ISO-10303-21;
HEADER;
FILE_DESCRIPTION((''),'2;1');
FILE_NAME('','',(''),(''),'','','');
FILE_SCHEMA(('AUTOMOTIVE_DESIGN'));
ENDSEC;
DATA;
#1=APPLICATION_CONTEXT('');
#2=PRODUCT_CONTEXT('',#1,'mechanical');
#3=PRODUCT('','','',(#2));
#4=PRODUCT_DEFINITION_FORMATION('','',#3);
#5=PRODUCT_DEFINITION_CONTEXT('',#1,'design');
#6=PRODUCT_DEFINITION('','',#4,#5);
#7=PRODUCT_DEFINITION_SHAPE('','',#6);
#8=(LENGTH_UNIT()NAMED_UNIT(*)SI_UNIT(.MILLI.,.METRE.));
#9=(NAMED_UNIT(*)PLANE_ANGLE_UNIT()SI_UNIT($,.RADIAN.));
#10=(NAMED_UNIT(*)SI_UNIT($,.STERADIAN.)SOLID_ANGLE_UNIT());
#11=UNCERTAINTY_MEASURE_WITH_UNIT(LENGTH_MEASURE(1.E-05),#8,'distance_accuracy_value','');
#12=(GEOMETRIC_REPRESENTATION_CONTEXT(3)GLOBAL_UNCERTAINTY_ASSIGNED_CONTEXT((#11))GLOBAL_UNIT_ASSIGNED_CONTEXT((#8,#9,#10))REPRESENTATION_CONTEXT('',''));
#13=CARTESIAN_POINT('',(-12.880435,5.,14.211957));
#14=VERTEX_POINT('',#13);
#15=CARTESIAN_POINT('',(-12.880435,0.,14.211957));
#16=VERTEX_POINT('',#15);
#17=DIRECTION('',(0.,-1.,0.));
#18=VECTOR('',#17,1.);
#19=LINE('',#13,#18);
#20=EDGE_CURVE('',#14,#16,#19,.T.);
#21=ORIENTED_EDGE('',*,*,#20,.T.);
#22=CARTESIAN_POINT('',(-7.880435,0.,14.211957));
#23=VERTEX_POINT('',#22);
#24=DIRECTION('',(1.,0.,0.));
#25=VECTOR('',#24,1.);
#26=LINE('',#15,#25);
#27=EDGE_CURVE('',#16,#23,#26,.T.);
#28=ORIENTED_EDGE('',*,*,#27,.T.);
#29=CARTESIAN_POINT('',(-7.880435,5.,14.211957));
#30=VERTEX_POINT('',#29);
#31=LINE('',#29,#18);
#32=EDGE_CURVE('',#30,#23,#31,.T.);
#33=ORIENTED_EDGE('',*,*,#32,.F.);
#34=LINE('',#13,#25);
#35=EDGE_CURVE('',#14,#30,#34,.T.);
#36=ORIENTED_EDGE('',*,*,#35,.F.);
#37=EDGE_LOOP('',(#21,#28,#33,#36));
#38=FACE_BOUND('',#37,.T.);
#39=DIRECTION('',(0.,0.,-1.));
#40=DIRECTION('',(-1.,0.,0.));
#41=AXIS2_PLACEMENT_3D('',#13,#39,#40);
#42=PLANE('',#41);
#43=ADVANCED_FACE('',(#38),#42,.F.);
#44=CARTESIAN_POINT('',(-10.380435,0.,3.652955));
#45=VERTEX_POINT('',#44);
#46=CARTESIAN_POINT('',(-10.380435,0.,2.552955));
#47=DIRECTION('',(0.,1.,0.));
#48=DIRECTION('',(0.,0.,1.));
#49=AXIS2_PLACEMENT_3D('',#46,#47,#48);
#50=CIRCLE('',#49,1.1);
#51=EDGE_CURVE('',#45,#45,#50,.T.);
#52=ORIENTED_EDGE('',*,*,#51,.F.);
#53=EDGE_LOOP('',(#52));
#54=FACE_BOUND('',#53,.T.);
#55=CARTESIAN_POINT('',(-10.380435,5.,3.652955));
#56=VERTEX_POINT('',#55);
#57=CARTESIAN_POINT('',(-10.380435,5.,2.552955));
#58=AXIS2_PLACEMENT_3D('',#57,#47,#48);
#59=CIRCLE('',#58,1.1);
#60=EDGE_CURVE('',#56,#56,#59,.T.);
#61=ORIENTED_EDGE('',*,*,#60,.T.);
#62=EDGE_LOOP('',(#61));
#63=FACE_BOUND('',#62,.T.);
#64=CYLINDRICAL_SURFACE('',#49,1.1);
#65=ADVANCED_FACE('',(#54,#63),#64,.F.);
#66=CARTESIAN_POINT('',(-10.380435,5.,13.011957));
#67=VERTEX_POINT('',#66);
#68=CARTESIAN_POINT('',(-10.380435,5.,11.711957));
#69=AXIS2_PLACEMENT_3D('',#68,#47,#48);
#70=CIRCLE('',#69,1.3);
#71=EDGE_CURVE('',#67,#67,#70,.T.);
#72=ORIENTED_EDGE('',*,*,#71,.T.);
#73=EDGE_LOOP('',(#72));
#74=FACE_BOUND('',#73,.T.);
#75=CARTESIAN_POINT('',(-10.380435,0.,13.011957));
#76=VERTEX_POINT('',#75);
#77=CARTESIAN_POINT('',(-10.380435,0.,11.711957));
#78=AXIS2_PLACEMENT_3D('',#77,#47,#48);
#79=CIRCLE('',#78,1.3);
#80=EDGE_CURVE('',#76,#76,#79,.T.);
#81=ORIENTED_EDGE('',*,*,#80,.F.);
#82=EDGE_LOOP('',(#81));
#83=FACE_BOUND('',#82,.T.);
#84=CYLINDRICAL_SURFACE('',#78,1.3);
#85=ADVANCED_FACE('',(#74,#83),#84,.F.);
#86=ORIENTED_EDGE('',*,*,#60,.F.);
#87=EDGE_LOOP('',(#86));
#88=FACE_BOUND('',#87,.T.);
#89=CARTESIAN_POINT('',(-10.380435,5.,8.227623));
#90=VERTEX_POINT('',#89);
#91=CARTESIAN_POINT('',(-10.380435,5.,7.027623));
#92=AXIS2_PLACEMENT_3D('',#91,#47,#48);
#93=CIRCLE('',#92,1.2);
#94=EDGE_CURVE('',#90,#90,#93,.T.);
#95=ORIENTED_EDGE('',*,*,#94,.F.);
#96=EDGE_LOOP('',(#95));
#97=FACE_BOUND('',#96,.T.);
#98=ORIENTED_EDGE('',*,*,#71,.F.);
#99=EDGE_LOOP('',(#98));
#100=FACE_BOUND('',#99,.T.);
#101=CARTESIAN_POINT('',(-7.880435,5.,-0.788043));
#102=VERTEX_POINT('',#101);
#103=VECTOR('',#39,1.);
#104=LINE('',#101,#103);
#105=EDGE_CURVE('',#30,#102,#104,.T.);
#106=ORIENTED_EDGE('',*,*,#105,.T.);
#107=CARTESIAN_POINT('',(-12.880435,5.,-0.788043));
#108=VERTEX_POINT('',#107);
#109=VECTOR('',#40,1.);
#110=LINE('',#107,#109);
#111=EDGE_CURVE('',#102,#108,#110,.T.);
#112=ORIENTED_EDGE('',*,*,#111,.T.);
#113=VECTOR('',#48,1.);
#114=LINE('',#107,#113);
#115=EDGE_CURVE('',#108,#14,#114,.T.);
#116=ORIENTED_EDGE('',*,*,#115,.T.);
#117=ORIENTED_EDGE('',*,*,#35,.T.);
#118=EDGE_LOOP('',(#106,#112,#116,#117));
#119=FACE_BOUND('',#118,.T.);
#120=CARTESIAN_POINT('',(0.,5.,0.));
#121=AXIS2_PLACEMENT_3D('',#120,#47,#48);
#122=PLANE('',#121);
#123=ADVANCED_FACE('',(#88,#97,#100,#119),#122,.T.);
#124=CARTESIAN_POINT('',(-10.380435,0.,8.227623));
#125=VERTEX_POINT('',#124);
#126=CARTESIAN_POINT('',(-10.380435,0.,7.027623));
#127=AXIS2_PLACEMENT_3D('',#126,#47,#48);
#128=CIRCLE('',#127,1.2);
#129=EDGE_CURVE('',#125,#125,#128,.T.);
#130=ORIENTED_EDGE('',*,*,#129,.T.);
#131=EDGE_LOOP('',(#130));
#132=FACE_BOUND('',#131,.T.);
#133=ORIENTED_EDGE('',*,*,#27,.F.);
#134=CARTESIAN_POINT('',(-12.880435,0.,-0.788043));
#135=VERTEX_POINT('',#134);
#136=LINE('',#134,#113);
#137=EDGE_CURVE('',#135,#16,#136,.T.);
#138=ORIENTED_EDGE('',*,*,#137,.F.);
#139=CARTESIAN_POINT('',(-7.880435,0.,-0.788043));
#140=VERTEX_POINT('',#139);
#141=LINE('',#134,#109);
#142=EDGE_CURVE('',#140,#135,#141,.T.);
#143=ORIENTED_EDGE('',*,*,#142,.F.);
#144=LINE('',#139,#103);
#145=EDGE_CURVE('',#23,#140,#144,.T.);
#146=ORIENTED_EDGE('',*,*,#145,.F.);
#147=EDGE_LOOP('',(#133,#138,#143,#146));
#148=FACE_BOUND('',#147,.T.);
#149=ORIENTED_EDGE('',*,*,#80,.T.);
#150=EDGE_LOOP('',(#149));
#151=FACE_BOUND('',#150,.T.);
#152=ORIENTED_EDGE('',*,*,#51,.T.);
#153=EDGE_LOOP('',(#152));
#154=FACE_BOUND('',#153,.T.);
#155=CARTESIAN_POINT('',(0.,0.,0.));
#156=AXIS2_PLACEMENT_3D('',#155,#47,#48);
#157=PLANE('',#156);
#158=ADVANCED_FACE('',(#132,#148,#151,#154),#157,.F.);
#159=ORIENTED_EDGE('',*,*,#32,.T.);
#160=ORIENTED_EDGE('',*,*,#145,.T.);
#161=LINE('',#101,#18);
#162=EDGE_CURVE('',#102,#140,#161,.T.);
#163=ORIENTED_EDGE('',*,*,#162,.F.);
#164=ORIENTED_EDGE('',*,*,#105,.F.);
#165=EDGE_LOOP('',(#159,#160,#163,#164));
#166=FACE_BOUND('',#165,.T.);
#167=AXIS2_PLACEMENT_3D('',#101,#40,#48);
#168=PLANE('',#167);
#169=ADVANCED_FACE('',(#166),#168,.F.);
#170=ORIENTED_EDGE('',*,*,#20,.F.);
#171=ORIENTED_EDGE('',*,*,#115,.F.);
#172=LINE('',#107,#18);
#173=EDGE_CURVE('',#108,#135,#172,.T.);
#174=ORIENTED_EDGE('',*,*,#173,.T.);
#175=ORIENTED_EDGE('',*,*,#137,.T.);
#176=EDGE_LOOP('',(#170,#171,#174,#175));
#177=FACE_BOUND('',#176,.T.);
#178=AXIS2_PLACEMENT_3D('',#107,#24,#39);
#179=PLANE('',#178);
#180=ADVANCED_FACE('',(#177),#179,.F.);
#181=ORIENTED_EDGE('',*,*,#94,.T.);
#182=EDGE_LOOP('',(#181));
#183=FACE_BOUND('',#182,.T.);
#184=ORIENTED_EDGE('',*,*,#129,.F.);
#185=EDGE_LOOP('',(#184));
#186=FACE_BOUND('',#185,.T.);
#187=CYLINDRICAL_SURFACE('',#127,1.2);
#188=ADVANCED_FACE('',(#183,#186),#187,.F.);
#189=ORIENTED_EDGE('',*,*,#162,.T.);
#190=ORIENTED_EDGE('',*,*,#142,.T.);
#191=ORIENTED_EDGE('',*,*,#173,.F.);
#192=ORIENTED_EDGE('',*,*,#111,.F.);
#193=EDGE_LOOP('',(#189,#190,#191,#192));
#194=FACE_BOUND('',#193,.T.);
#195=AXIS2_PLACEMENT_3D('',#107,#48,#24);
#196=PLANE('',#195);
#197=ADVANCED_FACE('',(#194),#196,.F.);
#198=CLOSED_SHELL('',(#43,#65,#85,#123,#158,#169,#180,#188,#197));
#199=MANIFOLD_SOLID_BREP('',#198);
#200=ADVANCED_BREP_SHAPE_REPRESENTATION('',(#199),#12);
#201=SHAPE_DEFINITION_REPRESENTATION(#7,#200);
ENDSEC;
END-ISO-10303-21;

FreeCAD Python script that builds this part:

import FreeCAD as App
import Part
import Sketcher

V = App.Vector

doc = App.newDocument("Part")
body = doc.addObject("PartDesign::Body", "Body")

# Sketch on XZ plane
sketch1 = body.newObject("Sketcher::SketchObject", "Sketch")
sketch1.AttachmentSupport = (doc.getObject("XZ_Plane"), [""])
sketch1.MapMode = "FlatFace"
sketch1.addGeometry([
    Part.LineSegment(V(-13, -1, 0), V(-13, 14, 0)),
    Part.LineSegment(V(-13, 14, 0), V(-8, 14, 0)),
    Part.LineSegment(V(-8, 14, 0), V(-8, -1, 0)),
    Part.LineSegment(V(-8, -1, 0), V(-13, -1, 0)),
], False)
sketch1.addConstraint([
    Sketcher.Constraint("Coincident", 0, 2, 1, 1),
    Sketcher.Constraint("Coincident", 1, 2, 2, 1),
    Sketcher.Constraint("Coincident", 2, 2, 3, 1),
    Sketcher.Constraint("Coincident", 3, 2, 0, 1),
    Sketcher.Constraint("Vertical", 0),
    Sketcher.Constraint("Horizontal", 1),
    Sketcher.Constraint("Vertical", 2),
    Sketcher.Constraint("Horizontal", 3),
    Sketcher.Constraint("DistanceX", 1, 1, 1, 2, 5.0),
    Sketcher.Constraint("DistanceY", 0, 1, 0, 2, 15.0),
    Sketcher.Constraint("DistanceX", 0, 2, -1, 1, 12.880435),
    Sketcher.Constraint("DistanceY", -1, 1, 0, 2, 14.211957),
])
pad1 = body.newObject("PartDesign::Pad", "Pad")
pad1.Profile = sketch1
pad1.Length = 5
pad1.Reversed = True

# Sketch on XZ plane
sketch2 = body.newObject("Sketcher::SketchObject", "Sketch001")
sketch2.AttachmentSupport = (doc.getObject("XZ_Plane"), [""])
sketch2.MapMode = "FlatFace"
sketch2.AttachmentOffset = App.Placement(V(0, 0, -5), App.Rotation())
sketch2.addGeometry([
    Part.Circle(V(-10.4, 11.7, 0), V(0, 0, 1), 1.3),
    Part.Circle(V(-10.4, 7, 0), V(0, 0, 1), 1.2),
    Part.Circle(V(-10.4, 2.6, 0), V(0, 0, 1), 1.1),
], False)
sketch2.addConstraint([
    Sketcher.Constraint("Vertical", 0, 3, 1, 3),
    Sketcher.Constraint("Vertical", 1, 3, 2, 3),
    Sketcher.Constraint("Diameter", 0, 2.6),
    Sketcher.Constraint("Diameter", 1, 2.4),
    Sketcher.Constraint("Diameter", 2, 2.2),
    Sketcher.Constraint("DistanceY", 2, 3, 0, 3, 9.159001),
    Sketcher.Constraint("DistanceX", 0, 3, -1, 1, 10.380435),
    Sketcher.Constraint("DistanceY", -1, 1, 0, 3, 11.711957),
    Sketcher.Constraint("DistanceY", -1, 1, 1, 3, 7.027623),
])
pocket1 = body.newObject("PartDesign::Pocket", "Pocket")
pocket1.Profile = sketch2
pocket1.Length = 5
pocket1.Reversed = True

doc.recompute()
